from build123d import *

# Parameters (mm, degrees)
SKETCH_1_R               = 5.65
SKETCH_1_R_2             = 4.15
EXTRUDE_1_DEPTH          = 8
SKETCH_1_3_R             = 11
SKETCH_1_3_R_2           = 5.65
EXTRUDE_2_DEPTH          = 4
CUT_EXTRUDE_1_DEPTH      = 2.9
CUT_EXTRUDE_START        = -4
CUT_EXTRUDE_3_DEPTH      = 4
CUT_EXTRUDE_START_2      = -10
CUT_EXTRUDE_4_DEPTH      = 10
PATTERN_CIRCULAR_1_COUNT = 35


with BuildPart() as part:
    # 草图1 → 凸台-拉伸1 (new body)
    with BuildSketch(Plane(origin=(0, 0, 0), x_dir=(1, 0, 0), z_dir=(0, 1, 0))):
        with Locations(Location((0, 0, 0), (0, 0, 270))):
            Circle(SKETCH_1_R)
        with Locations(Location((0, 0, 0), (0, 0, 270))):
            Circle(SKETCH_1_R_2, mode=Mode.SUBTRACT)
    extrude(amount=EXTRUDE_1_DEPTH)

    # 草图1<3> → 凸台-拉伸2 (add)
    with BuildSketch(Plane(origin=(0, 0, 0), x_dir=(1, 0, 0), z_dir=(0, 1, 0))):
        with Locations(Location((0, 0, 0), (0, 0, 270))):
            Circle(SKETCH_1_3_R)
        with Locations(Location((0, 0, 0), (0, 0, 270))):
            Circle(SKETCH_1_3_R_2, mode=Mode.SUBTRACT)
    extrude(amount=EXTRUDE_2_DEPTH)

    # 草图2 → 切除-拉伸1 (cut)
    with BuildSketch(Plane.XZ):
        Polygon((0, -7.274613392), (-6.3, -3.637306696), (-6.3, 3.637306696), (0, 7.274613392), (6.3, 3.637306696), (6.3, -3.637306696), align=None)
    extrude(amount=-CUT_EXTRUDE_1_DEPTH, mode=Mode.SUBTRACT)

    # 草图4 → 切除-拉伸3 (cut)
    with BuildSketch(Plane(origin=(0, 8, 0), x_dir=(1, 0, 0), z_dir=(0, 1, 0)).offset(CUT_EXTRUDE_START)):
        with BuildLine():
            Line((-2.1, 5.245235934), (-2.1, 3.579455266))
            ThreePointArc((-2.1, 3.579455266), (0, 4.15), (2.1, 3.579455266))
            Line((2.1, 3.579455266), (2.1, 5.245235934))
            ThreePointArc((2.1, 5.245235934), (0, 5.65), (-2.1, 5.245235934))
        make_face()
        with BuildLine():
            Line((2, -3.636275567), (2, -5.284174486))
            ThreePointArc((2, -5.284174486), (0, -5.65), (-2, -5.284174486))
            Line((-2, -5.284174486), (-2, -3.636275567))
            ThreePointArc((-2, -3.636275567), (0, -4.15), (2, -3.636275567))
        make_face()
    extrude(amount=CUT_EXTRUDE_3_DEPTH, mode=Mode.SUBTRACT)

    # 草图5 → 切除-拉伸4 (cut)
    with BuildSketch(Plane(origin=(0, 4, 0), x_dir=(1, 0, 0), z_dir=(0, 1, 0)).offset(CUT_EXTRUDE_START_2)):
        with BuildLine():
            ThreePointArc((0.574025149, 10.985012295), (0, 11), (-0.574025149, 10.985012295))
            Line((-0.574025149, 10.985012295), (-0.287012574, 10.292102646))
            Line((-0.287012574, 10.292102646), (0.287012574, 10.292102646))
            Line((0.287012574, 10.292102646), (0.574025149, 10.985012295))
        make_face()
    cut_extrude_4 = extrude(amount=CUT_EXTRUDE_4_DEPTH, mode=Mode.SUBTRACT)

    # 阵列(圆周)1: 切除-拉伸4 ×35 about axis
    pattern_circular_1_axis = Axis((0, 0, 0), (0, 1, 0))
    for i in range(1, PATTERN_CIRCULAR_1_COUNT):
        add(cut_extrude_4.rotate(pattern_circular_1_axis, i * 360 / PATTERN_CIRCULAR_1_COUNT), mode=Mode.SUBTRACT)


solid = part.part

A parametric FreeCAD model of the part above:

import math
import FreeCAD as App
import Part
import Sketcher
from FreeCAD import Vector
Q = App.Units.Quantity

doc = App.newDocument("Part")
body = doc.addObject("PartDesign::Body", "Body")

sketch1 = doc.addObject("Sketcher::SketchObject", "Sketch")
body.addObject(sketch1)
sketch1.AttachmentSupport = (doc.XZ_Plane, [""])
sketch1.MapMode = "FlatFace"
sketch1.addGeometry([
    Part.Circle(Vector(0, 0, 0), Vector(0, 0, 1), 5.7),
    Part.Circle(Vector(0, 0, 0), Vector(0, 0, 1), 4.2),
], False)
sketch1.addConstraint([
    Sketcher.Constraint("Coincident", 0, 3, -1, 1),
    Sketcher.Constraint("Coincident", 1, 3, -1, 1),
    Sketcher.Constraint("Diameter", 0, 11.3),
    Sketcher.Constraint("Diameter", 1, 8.3),
])
pad1 = doc.addObject("PartDesign::Pad", "Pad")
body.addObject(pad1)
pad1.Profile = sketch1
pad1.Length = 8
pad1.Reversed = True

sketch2 = doc.addObject("Sketcher::SketchObject", "Sketch001")
body.addObject(sketch2)
sketch2.AttachmentSupport = (doc.XZ_Plane, [""])
sketch2.MapMode = "FlatFace"
sketch2.addGeometry([
    Part.Circle(Vector(0, 0, 0), Vector(0, 0, 1), 11),
    Part.Circle(Vector(0, 0, 0), Vector(0, 0, 1), 6),
], False)
sketch2.addConstraint([
    Sketcher.Constraint("Coincident", 0, 3, -1, 1),
    Sketcher.Constraint("Coincident", 1, 3, -1, 1),
    Sketcher.Constraint("Diameter", 0, 22.0),
    Sketcher.Constraint("Diameter", 1, 11.3),
])
pad2 = doc.addObject("PartDesign::Pad", "Pad001")
body.addObject(pad2)
pad2.Profile = sketch2
pad2.Length = 4
pad2.Reversed = True

sketch3 = doc.addObject("Sketcher::SketchObject", "Sketch002")
body.addObject(sketch3)
sketch3.AttachmentSupport = (doc.XZ_Plane, [""])
sketch3.MapMode = "FlatFace"
sketch3.addGeometry([
    Part.LineSegment(Vector(-6, -4, 0), Vector(0, -7, 0)),
    Part.LineSegment(Vector(0, -7, 0), Vector(6, -4, 0)),
    Part.LineSegment(Vector(6, -4, 0), Vector(6, 4, 0)),
    Part.LineSegment(Vector(6, 4, 0), Vector(0, 7, 0)),
    Part.LineSegment(Vector(0, 7, 0), Vector(-6, 4, 0)),
    Part.LineSegment(Vector(-6, 4, 0), Vector(-6, -4, 0)),
], False)
sketch3.addConstraint([
    Sketcher.Constraint("Coincident", 0, 2, 1, 1),
    Sketcher.Constraint("Coincident", 1, 2, 2, 1),
    Sketcher.Constraint("Coincident", 2, 2, 3, 1),
    Sketcher.Constraint("Coincident", 3, 2, 4, 1),
    Sketcher.Constraint("Coincident", 4, 2, 5, 1),
    Sketcher.Constraint("Coincident", 5, 2, 0, 1),
    Sketcher.Constraint("Vertical", 2),
    Sketcher.Constraint("Vertical", 5),
    Sketcher.Constraint("Symmetric", 0, 2, 3, 2, -1, 1),
    Sketcher.Constraint("Symmetric", 1, 2, 4, 2, -1, 1),
    Sketcher.Constraint("PointOnObject", 0, 2, -2),
    Sketcher.Constraint("Parallel", 0, 3),
    Sketcher.Constraint("Horizontal", 2, 2, 4, 2),
    Sketcher.Constraint("Angle", 0, Q("-30 deg")),
    Sketcher.Constraint("DistanceX", -1, 1, 1, 2, 6.3),
    Sketcher.Constraint("DistanceY", 2, 1, 2, 2, 7.274613),
])
pocket1 = doc.addObject("PartDesign::Pocket", "Pocket")
body.addObject(pocket1)
pocket1.Profile = sketch3
pocket1.Length = 2.9

sketch4 = doc.addObject("Sketcher::SketchObject", "Sketch003")
body.addObject(sketch4)
sketch4.AttachmentSupport = (doc.XZ_Plane, [""])
sketch4.MapMode = "FlatFace"
sketch4.AttachmentOffset = App.Placement(Vector(0, 0, -4), App.Rotation())
sketch4.addGeometry([
    Part.LineSegment(Vector(-2.1, -5.2, 0), Vector(-2.1, -3.6, 0)),
    Part.ArcOfCircle(Part.Circle(Vector(0, 0, 0), Vector(0, 0, 1), 4.2), math.radians(-120), math.radians(-60)),
    Part.LineSegment(Vector(2.1, -3.6, 0), Vector(2.1, -5.2, 0)),
    Part.ArcOfCircle(Part.Circle(Vector(0, 0, 0), Vector(0, 0, 1), 5.7), math.radians(-112), math.radians(-68)),
    Part.LineSegment(Vector(2, 5.3, 0), Vector(2, 3.6, 0)),
    Part.ArcOfCircle(Part.Circle(Vector(0, 0, 0), Vector(0, 0, 1), 4.1), math.radians(61), math.radians(119)),
    Part.LineSegment(Vector(-2, 3.6, 0), Vector(-2, 5.3, 0)),
    Part.ArcOfCircle(Part.Circle(Vector(0, 0, 0), Vector(0, 0, 1), 5.6), math.radians(69), math.radians(111)),
], False)
sketch4.addConstraint([
    Sketcher.Constraint("Coincident", 0, 2, 1, 1),
    Sketcher.Constraint("Coincident", 1, 2, 2, 1),
    Sketcher.Constraint("Coincident", 2, 2, 3, 2),
    Sketcher.Constraint("Coincident", 3, 1, 0, 1),
    Sketcher.Constraint("Coincident", 4, 2, 5, 1),
    Sketcher.Constraint("Coincident", 5, 2, 6, 1),
    Sketcher.Constraint("Coincident", 6, 2, 7, 2),
    Sketcher.Constraint("Coincident", 7, 1, 4, 1),
    Sketcher.Constraint("Vertical", 0),
    Sketcher.Constraint("Vertical", 2),
    Sketcher.Constraint("Vertical", 4),
    Sketcher.Constraint("Vertical", 6),
    Sketcher.Constraint("Coincident", 1, 3, -1, 1),
    Sketcher.Constraint("Coincident", 3, 3, -1, 1),
    Sketcher.Constraint("Coincident", 5, 3, -1, 1),
    Sketcher.Constraint("Coincident", 7, 3, -1, 1),
    Sketcher.Constraint("Equal", 1, 5),
    Sketcher.Constraint("Equal", 3, 7),
    Sketcher.Constraint("Horizontal", 0, 2, 1, 2),
    Sketcher.Constraint("Horizontal", 4, 2, 5, 2),
    Sketcher.Constraint("Radius", 1, 4.15),
    Sketcher.Constraint("Radius", 3, 5.65),
    Sketcher.Constraint("DistanceX", -1, 1, 4, 2, 2.0),
    Sketcher.Constraint("DistanceX", 0, 2, -1, 1, 2.1),
])
pocket2 = doc.addObject("PartDesign::Pocket", "Pocket001")
body.addObject(pocket2)
pocket2.Profile = sketch4
pocket2.Length = 4

sketch5 = doc.addObject("Sketcher::SketchObject", "Sketch004")
body.addObject(sketch5)
sketch5.AttachmentSupport = (doc.XZ_Plane, [""])
sketch5.MapMode = "FlatFace"
sketch5.AttachmentOffset = App.Placement(Vector(0, 0, 6), App.Rotation())
sketch5.addGeometry([
    Part.ArcOfCircle(Part.Circle(Vector(0, 0, 0), Vector(0, 0, 1), 11), math.radians(-92.99), math.radians(-87.01)),
    Part.LineSegment(Vector(-0.6, -11, 0), Vector(-0.3, -10.3, 0)),
    Part.LineSegment(Vector(-0.3, -10.3, 0), Vector(0.3, -10.3, 0)),
    Part.LineSegment(Vector(0.3, -10.3, 0), Vector(0.6, -11, 0)),
], False)
sketch5.addConstraint([
    Sketcher.Constraint("Coincident", 0, 1, 1, 1),
    Sketcher.Constraint("Coincident", 1, 2, 2, 1),
    Sketcher.Constraint("Coincident", 2, 2, 3, 1),
    Sketcher.Constraint("Coincident", 3, 2, 0, 2),
    Sketcher.Constraint("Horizontal", 2),
    Sketcher.Constraint("Coincident", 0, 3, -1, 1),
    Sketcher.Constraint("Horizontal", 0, 1, 3, 2),
    Sketcher.Constraint("Equal", 1, 3),
    Sketcher.Constraint("Radius", 0, 11.0),
    Sketcher.Constraint("Angle", 1, Q("67.5 deg")),
    Sketcher.Constraint("Distance", 1, 0.75),
    Sketcher.Constraint("DistanceX", 2, 1, 2, 2, 0.574025),
])
pocket3 = doc.addObject("PartDesign::Pocket", "Pocket002")
body.addObject(pocket3)
pocket3.Profile = sketch5
pocket3.Length = 10
doc.recompute()

polarpattern = doc.addObject("PartDesign::PolarPattern", "PolarPattern")
body.addObject(polarpattern)
polarpattern.Originals = [pocket3]
polarpattern.Axis = (doc.Y_Axis, [""])
polarpattern.Angle = 360
polarpattern.Occurrences = 35
body.Tip = polarpattern

doc.recompute()
